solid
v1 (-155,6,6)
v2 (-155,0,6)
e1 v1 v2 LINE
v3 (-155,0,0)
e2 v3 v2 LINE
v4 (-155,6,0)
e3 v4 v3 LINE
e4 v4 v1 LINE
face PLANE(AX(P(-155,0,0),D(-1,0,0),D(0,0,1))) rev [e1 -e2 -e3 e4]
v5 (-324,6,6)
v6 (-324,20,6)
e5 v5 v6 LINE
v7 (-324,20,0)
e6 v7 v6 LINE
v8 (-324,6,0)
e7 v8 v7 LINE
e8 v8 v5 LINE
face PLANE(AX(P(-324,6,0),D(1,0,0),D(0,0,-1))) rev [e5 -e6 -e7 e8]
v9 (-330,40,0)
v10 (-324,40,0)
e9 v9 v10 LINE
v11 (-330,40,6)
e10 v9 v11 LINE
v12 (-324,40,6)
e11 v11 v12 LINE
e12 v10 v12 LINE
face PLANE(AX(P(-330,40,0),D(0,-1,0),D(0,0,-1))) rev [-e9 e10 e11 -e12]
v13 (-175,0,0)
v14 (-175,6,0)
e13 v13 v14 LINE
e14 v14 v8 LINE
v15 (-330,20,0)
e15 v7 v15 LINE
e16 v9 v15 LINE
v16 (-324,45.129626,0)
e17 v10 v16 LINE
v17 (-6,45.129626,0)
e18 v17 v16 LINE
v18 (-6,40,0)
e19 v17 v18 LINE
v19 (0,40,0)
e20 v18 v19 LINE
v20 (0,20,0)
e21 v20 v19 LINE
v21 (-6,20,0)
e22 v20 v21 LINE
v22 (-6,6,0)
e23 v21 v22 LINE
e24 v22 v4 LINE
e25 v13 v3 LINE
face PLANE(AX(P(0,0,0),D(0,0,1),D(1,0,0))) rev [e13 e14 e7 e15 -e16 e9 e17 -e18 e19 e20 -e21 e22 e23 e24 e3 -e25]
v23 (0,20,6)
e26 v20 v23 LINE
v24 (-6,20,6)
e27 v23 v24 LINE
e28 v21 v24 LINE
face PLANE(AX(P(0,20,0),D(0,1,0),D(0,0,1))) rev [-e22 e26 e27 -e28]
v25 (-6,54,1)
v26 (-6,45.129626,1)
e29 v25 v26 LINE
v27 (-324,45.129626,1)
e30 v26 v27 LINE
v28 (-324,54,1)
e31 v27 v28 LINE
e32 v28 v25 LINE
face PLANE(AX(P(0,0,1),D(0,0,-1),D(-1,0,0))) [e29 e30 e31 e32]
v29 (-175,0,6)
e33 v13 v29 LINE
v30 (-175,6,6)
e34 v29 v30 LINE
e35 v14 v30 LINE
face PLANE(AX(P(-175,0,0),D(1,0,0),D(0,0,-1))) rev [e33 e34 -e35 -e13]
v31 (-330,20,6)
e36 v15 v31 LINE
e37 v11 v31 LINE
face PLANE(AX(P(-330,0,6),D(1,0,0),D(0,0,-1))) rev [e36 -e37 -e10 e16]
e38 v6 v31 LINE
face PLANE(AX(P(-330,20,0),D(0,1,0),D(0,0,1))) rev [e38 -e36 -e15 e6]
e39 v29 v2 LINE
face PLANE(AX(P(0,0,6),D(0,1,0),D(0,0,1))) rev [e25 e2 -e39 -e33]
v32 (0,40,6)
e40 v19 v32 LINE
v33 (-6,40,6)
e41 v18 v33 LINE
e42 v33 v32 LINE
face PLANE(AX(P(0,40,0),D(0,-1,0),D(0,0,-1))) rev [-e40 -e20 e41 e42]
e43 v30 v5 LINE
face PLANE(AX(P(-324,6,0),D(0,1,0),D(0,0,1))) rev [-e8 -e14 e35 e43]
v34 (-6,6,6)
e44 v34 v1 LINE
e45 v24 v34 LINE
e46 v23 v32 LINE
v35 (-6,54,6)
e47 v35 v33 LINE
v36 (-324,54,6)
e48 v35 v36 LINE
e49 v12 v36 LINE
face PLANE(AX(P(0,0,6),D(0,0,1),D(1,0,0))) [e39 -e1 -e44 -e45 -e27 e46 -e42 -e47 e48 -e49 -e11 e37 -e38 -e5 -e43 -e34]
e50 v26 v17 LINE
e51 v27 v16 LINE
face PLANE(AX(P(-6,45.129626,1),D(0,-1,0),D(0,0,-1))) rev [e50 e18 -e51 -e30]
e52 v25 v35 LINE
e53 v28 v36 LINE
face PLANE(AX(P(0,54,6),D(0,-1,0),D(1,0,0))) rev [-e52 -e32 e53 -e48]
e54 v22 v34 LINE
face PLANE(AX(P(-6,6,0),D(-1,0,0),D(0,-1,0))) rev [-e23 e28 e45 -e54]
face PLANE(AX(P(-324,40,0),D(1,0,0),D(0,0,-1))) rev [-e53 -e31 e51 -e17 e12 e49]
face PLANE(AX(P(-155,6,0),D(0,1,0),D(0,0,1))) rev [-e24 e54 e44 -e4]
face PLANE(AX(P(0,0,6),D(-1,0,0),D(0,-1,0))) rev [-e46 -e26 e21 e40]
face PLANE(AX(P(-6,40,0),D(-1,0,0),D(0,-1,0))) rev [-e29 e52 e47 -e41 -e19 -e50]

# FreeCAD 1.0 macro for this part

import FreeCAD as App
import Part
import Sketcher

V = App.Vector

doc = App.newDocument("Part")
params = doc.addObject("Spreadsheet::Sheet", "Params")
for row, (alias, value) in enumerate([
    ("sketch1_width", "330 mm"),
    ("sketch1_height", "54 mm"),
    ("pad1_length", "6 mm"),
    ("sketch2_width", "155 mm"),
    ("sketch2_width2", "149 mm"),
    ("sketch2_height", "14 mm"),
    ("sketch3_width", "318 mm"),
    ("pocket2_length", "1 mm"),
], start=1):
    params.set(f"A{row}", alias)
    params.set(f"B{row}", "=" + value)
    params.setAlias(f"B{row}", alias)

body = doc.addObject("PartDesign::Body", "Body")

# Sketch on XY plane
sketch1 = doc.addObject("Sketcher::SketchObject", "Sketch")
body.addObject(sketch1)
sketch1.AttachmentSupport = (doc.XY_Plane, [""])
sketch1.MapMode = "FlatFace"
sketch1.addGeometry([
    Part.LineSegment(V(-330, 54, 0), V(-330, 0, 0)),
    Part.LineSegment(V(-330, 0, 0), V(0, 0, 0)),
    Part.LineSegment(V(0, 0, 0), V(0, 54, 0)),
    Part.LineSegment(V(0, 54, 0), V(-330, 54, 0)),
], False)
sketch1.addConstraint([
    Sketcher.Constraint("Coincident", 0, 2, 1, 1),
    Sketcher.Constraint("Coincident", 1, 2, 2, 1),
    Sketcher.Constraint("Coincident", 2, 2, 3, 1),
    Sketcher.Constraint("Coincident", 3, 2, 0, 1),
    Sketcher.Constraint("Vertical", 0),
    Sketcher.Constraint("Horizontal", 1),
    Sketcher.Constraint("Vertical", 2),
    Sketcher.Constraint("Horizontal", 3),
    Sketcher.Constraint("Coincident", 1, 2, -1, 1),
    Sketcher.Constraint("DistanceX", 1, 1, 1, 2, 330.0),
    Sketcher.Constraint("DistanceY", 0, 2, 0, 1, 54.0),
])
sketch1.setExpression("Constraints[9]", "Params.sketch1_width")
sketch1.setExpression("Constraints[10]", "Params.sketch1_height")
pad1 = doc.addObject("PartDesign::Pad", "Pad")
body.addObject(pad1)
pad1.Profile = sketch1
pad1.setExpression("Length", "Params.pad1_length")

# Sketch on XY plane
sketch2 = doc.addObject("Sketcher::SketchObject", "Sketch001")
body.addObject(sketch2)
sketch2.AttachmentSupport = (doc.XY_Plane, [""])
sketch2.MapMode = "FlatFace"
sketch2.AttachmentOffset = App.Placement(V(0, 0, 6), App.Rotation())
sketch2.addGeometry([
    Part.LineSegment(V(-330, 0, 0), V(-175, 0, 0)),  # 0
    Part.LineSegment(V(-175, 0, 0), V(-175, 6, 0)),  # 1
    Part.LineSegment(V(-175, 6, 0), V(-324, 6, 0)),  # 2
    Part.LineSegment(V(-324, 6, 0), V(-324, 20, 0)),  # 3
    Part.LineSegment(V(-324, 20, 0), V(-330, 20, 0)),  # 4
    Part.LineSegment(V(-330, 20, 0), V(-330, 0, 0)),  # 5
    Part.LineSegment(V(-330, 54, 0), V(-330, 40, 0)),  # 6
    Part.LineSegment(V(-330, 40, 0), V(-324, 40, 0)),  # 7
    Part.LineSegment(V(-324, 40, 0), V(-324, 54, 0)),  # 8
    Part.LineSegment(V(-324, 54, 0), V(-330, 54, 0)),  # 9
    Part.LineSegment(V(-155, 0, 0), V(0, 0, 0)),  # 10
    Part.LineSegment(V(0, 0, 0), V(0, 20, 0)),  # 11
    Part.LineSegment(V(0, 20, 0), V(-6, 20, 0)),  # 12
    Part.LineSegment(V(-6, 20, 0), V(-6, 6, 0)),  # 13
    Part.LineSegment(V(-6, 6, 0), V(-155, 6, 0)),  # 14
    Part.LineSegment(V(-155, 6, 0), V(-155, 0, 0)),  # 15
    Part.LineSegment(V(-6, 54, 0), V(-6, 40, 0)),  # 16
    Part.LineSegment(V(-6, 40, 0), V(0, 40, 0)),  # 17
    Part.LineSegment(V(0, 40, 0), V(0, 54, 0)),  # 18
    Part.LineSegment(V(0, 54, 0), V(-6, 54, 0)),  # 19
], False)
sketch2.addConstraint([
    Sketcher.Constraint("Coincident", 0, 2, 1, 1),
    Sketcher.Constraint("Coincident", 1, 2, 2, 1),
    Sketcher.Constraint("Coincident", 2, 2, 3, 1),
    Sketcher.Constraint("Coincident", 3, 2, 4, 1),
    Sketcher.Constraint("Coincident", 4, 2, 5, 1),
    Sketcher.Constraint("Coincident", 5, 2, 0, 1),
    Sketcher.Constraint("Coincident", 6, 2, 7, 1),
    Sketcher.Constraint("Coincident", 7, 2, 8, 1),
    Sketcher.Constraint("Coincident", 8, 2, 9, 1),
    Sketcher.Constraint("Coincident", 9, 2, 6, 1),
    Sketcher.Constraint("Coincident", 10, 2, 11, 1),
    Sketcher.Constraint("Coincident", 11, 2, 12, 1),
    Sketcher.Constraint("Coincident", 12, 2, 13, 1),
    Sketcher.Constraint("Coincident", 13, 2, 14, 1),
    Sketcher.Constraint("Coincident", 14, 2, 15, 1),
    Sketcher.Constraint("Coincident", 15, 2, 10, 1),
    Sketcher.Constraint("Coincident", 16, 2, 17, 1),
    Sketcher.Constraint("Coincident", 17, 2, 18, 1),
    Sketcher.Constraint("Coincident", 18, 2, 19, 1),
    Sketcher.Constraint("Coincident", 19, 2, 16, 1),
    Sketcher.Constraint("Horizontal", 0),
    Sketcher.Constraint("Vertical", 1),
    Sketcher.Constraint("Horizontal", 2),
    Sketcher.Constraint("Vertical", 3),
    Sketcher.Constraint("Horizontal", 4),
    Sketcher.Constraint("Vertical", 5),
    Sketcher.Constraint("Vertical", 6),
    Sketcher.Constraint("Horizontal", 7),
    Sketcher.Constraint("Vertical", 8),
    Sketcher.Constraint("Horizontal", 9),
    Sketcher.Constraint("Horizontal", 10),
    Sketcher.Constraint("Vertical", 11),
    Sketcher.Constraint("Horizontal", 12),
    Sketcher.Constraint("Vertical", 13),
    Sketcher.Constraint("Horizontal", 14),
    Sketcher.Constraint("Vertical", 15),
    Sketcher.Constraint("Vertical", 16),
    Sketcher.Constraint("Horizontal", 17),
    Sketcher.Constraint("Vertical", 18),
    Sketcher.Constraint("Horizontal", 19),
    Sketcher.Constraint("Coincident", 10, 2, -1, 1),
    Sketcher.Constraint("PointOnObject", 0, 2, -1),
    Sketcher.Constraint("PointOnObject", 17, 2, -2),
    Sketcher.Constraint("Horizontal", 4, 2, 11, 2),
    Sketcher.Constraint("Horizontal", 2, 2, 13, 2),
    Sketcher.Constraint("Horizontal", 7, 2, 16, 2),
    Sketcher.Constraint("Horizontal", 9, 2, 18, 2),
    Sketcher.Constraint("Vertical", 5, 2, 6, 2),
    Sketcher.Constraint("Vertical", 3, 2, 7, 2),
    Sketcher.Constraint("Vertical", 13, 2, 16, 2),
    Sketcher.Constraint("Equal", 0, 10),
    Sketcher.Constraint("Equal", 9, 12),
    Sketcher.Constraint("Equal", 19, 1),
    Sketcher.Constraint("Equal", 3, 6),
    Sketcher.Constraint("DistanceX", 0, 1, 0, 2, 155.0),
    Sketcher.Constraint("DistanceX", 2, 2, 2, 1, 149.0),
    Sketcher.Constraint("DistanceY", 3, 1, 3, 2, 14.0),
    Sketcher.Constraint("DistanceX", 0, 2, -1, 1, 175.0),
    Sketcher.Constraint("DistanceY", -1, 1, 6, 2, 40.0),
])
sketch2.setExpression("Constraints[54]", "Params.sketch2_width")
sketch2.setExpression("Constraints[55]", "Params.sketch2_width2")
sketch2.setExpression("Constraints[56]", "Params.sketch2_height")
pocket1 = doc.addObject("PartDesign::Pocket", "Pocket")
body.addObject(pocket1)
pocket1.Profile = sketch2
pocket1.Type = "ThroughAll"

# Sketch on XY plane
sketch3 = doc.addObject("Sketcher::SketchObject", "Sketch002")
body.addObject(sketch3)
sketch3.AttachmentSupport = (doc.XY_Plane, [""])
sketch3.MapMode = "FlatFace"
sketch3.addGeometry([
    Part.LineSegment(V(-6, 54, 0), V(-6, 45, 0)),
    Part.LineSegment(V(-6, 45, 0), V(-324, 45, 0)),
    Part.LineSegment(V(-324, 45, 0), V(-324, 54, 0)),
    Part.LineSegment(V(-324, 54, 0), V(-6, 54, 0)),
], False)
sketch3.addConstraint([
    Sketcher.Constraint("Coincident", 0, 2, 1, 1),
    Sketcher.Constraint("Coincident", 1, 2, 2, 1),
    Sketcher.Constraint("Coincident", 2, 2, 3, 1),
    Sketcher.Constraint("Coincident", 3, 2, 0, 1),
    Sketcher.Constraint("Vertical", 0),
    Sketcher.Constraint("Horizontal", 1),
    Sketcher.Constraint("Vertical", 2),
    Sketcher.Constraint("Horizontal", 3),
    Sketcher.Constraint("DistanceX", 1, 2, 1, 1, 318.0),
    Sketcher.Constraint("DistanceX", 0, 2, -1, 1, 6.0),
    Sketcher.Constraint("DistanceY", -1, 1, 2, 2, 54.0),
    Sketcher.Constraint("DistanceY", 0, 2, 0, 1, 8.870374),
])
sketch3.setExpression("Constraints[8]", "Params.sketch3_width")
pocket2 = doc.addObject("PartDesign::Pocket", "Pocket001")
body.addObject(pocket2)
pocket2.Profile = sketch3
pocket2.setExpression("Length", "Params.pocket2_length")
pocket2.Reversed = True

doc.recompute()
